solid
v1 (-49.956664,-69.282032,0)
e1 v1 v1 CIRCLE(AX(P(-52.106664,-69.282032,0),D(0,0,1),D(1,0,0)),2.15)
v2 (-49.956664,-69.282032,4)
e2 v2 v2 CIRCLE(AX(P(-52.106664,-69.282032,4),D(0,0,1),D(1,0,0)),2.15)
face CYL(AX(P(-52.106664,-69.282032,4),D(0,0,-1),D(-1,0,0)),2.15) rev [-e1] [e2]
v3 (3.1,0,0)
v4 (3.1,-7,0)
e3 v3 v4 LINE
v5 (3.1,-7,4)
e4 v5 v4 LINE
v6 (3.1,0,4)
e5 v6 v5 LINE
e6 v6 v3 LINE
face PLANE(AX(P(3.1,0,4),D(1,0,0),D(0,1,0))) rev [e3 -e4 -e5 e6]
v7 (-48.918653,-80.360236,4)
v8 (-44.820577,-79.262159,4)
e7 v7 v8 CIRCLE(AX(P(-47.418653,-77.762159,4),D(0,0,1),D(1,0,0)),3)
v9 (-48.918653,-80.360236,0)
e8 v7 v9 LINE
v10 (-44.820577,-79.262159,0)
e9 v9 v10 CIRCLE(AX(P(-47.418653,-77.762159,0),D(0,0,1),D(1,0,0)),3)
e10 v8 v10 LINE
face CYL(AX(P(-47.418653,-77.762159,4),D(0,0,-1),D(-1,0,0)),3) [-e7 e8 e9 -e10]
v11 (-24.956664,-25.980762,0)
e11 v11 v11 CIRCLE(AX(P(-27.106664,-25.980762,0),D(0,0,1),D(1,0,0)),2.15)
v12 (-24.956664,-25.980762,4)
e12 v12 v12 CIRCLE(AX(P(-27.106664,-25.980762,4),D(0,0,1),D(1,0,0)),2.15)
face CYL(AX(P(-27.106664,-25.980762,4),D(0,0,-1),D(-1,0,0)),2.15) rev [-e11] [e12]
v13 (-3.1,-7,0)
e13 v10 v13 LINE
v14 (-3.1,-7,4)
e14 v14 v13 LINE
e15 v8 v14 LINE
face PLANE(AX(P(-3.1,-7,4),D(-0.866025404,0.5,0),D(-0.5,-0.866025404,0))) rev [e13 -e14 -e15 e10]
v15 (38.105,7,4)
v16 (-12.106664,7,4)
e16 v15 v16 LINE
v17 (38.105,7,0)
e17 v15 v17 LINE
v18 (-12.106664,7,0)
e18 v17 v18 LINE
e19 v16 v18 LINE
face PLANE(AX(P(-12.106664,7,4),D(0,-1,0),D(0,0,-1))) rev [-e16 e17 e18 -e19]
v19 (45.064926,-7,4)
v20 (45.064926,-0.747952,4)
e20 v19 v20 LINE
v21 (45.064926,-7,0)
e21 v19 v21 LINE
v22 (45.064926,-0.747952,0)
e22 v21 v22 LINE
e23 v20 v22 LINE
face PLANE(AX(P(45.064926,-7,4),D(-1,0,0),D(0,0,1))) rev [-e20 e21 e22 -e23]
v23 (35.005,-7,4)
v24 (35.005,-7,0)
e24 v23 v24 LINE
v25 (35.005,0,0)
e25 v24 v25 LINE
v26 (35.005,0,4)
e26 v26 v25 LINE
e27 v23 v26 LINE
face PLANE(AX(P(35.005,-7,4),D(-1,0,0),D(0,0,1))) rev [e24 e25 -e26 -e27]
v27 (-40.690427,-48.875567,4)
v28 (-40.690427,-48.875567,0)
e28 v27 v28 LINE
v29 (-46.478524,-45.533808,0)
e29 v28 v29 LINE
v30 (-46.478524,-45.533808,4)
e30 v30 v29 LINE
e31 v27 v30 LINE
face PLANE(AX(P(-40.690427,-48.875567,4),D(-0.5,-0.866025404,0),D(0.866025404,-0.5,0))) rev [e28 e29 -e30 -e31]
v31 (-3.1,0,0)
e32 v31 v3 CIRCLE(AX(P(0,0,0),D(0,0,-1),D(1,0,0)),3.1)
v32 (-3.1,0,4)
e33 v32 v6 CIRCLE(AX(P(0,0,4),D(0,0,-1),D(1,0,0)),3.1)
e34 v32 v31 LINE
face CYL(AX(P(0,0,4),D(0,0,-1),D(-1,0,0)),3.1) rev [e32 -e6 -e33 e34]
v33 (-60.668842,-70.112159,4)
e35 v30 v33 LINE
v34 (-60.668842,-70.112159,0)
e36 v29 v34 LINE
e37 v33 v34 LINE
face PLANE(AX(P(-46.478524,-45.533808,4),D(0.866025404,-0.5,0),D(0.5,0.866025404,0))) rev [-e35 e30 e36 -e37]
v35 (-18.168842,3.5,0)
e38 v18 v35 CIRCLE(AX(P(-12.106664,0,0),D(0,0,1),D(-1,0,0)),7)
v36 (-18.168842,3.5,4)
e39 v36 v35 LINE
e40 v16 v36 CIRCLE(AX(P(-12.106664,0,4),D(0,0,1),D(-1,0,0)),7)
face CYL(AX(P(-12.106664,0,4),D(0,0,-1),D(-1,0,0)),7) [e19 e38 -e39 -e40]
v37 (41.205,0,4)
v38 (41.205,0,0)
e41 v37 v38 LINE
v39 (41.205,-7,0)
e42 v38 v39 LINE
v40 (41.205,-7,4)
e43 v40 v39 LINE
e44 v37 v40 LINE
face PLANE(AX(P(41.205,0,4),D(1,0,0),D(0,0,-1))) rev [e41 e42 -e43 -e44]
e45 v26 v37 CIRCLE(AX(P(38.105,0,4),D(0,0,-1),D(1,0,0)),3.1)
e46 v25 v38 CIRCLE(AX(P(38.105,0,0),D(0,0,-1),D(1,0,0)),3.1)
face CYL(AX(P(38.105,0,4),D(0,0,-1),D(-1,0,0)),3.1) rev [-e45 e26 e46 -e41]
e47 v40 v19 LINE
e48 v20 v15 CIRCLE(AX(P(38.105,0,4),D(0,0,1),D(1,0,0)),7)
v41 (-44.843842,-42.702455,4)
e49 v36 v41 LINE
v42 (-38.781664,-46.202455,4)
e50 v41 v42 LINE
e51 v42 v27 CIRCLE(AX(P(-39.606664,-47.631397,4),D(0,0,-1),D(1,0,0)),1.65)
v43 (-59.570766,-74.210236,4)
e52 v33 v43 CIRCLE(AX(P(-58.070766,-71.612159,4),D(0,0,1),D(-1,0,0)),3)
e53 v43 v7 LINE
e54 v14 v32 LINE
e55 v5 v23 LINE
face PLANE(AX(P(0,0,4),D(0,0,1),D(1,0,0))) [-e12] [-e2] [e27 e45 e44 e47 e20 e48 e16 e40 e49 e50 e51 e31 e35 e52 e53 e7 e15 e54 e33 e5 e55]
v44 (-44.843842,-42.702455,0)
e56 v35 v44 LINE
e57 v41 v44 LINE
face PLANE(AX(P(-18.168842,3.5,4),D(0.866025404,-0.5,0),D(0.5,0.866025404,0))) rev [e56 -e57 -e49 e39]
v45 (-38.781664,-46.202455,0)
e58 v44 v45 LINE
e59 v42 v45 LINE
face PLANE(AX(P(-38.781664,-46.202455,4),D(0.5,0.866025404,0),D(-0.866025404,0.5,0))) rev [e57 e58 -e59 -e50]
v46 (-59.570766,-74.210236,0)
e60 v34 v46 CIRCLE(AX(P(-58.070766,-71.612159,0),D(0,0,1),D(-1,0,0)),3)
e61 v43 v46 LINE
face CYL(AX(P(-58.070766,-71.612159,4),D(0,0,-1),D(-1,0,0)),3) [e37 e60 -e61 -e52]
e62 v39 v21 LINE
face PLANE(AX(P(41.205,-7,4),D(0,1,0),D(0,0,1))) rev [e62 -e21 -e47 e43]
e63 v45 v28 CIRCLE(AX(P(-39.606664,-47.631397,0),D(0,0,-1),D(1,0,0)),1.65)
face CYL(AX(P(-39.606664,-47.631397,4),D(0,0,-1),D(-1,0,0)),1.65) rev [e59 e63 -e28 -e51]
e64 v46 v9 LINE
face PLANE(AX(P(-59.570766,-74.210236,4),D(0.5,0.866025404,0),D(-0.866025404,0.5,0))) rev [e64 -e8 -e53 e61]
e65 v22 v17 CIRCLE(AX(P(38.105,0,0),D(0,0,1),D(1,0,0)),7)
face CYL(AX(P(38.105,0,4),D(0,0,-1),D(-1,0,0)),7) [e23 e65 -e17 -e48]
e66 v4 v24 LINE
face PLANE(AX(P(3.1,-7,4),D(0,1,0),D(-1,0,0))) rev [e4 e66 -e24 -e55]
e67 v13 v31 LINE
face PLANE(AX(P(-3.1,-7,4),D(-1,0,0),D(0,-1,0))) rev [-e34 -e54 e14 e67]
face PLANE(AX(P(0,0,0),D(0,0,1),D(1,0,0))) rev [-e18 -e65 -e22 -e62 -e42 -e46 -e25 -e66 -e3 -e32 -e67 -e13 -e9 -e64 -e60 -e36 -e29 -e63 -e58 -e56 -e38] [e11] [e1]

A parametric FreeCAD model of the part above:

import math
import FreeCAD as App
import Part
import Sketcher

V = App.Vector
Q = App.Units.Quantity

doc = App.newDocument("Part")
body = doc.addObject("PartDesign::Body", "Body")

sketch1 = body.newObject("Sketcher::SketchObject", "Sketch")
sketch1.AttachmentSupport = (doc.getObject("XY_Plane"), [""])
sketch1.MapMode = "FlatFace"
sketch1.addGeometry([
    Part.LineSegment(V(-3.1, -7, 0), V(-3.1, 0, 0)),
    Part.ArcOfCircle(Part.Circle(V(0, 0, 0), V(0, 0, 1), 3.1), math.radians(0), math.radians(180)),
    Part.LineSegment(V(3.1, 0, 0), V(3.1, -7, 0)),
    Part.LineSegment(V(3.1, -7, 0), V(35, -7, 0)),
    Part.LineSegment(V(35, -7, 0), V(35, 0, 0)),
    Part.ArcOfCircle(Part.Circle(V(38.1, 0, 0), V(0, 0, 1), 3.1), math.radians(0), math.radians(180)),
    Part.LineSegment(V(41.2, 0, 0), V(41.2, -7, 0)),
    Part.LineSegment(V(41.2, -7, 0), V(45.1, -7, 0)),
    Part.LineSegment(V(45.1, -7, 0), V(45.1, -0.7, 0)),
    Part.ArcOfCircle(Part.Circle(V(38.1, 0, 0), V(0, 0, 1), 7), math.radians(-6), math.radians(90)),
    Part.LineSegment(V(38.1, 7, 0), V(-12.1, 7, 0)),
    Part.ArcOfCircle(Part.Circle(V(-12.1, 0, 0), V(0, 0, 1), 7), math.radians(90), math.radians(150)),
    Part.LineSegment(V(-18.2, 3.5, 0), V(-44.8, -42.7, 0)),
    Part.LineSegment(V(-44.8, -42.7, 0), V(-38.8, -46.2, 0)),
    Part.ArcOfCircle(Part.Circle(V(-39.6, -47.6, 0), V(0, 0, 1), 1.6), math.radians(-131), math.radians(60)),
    Part.LineSegment(V(-40.7, -48.9, 0), V(-46.5, -45.5, 0)),
    Part.LineSegment(V(-46.5, -45.5, 0), V(-60.7, -70.1, 0)),
    Part.ArcOfCircle(Part.Circle(V(-58.1, -71.6, 0), V(0, 0, 1), 3), math.radians(150), math.radians(240)),
    Part.LineSegment(V(-59.6, -74.2, 0), V(-48.9, -80.4, 0)),
    Part.ArcOfCircle(Part.Circle(V(-47.4, -77.8, 0), V(0, 0, 1), 3), math.radians(-120), math.radians(-30)),
    Part.LineSegment(V(-44.8, -79.3, 0), V(-3.1, -7, 0)),
    Part.Circle(V(-52.1, -69.3, 0), V(0, 0, 1), 2.1),
    Part.Circle(V(-27.1, -26, 0), V(0, 0, 1), 2.1),
], False)
sketch1.addConstraint([
    Sketcher.Constraint("Tangent", 0, 2, 1, 2),
    Sketcher.Constraint("Tangent", 1, 1, 2, 1),
    Sketcher.Constraint("Coincident", 2, 2, 3, 1),
    Sketcher.Constraint("Coincident", 3, 2, 4, 1),
    Sketcher.Constraint("Tangent", 4, 2, 5, 2),
    Sketcher.Constraint("Tangent", 5, 1, 6, 1),
    Sketcher.Constraint("Coincident", 6, 2, 7, 1),
    Sketcher.Constraint("Coincident", 7, 2, 8, 1),
    Sketcher.Constraint("Coincident", 8, 2, 9, 1),
    Sketcher.Constraint("Tangent", 9, 2, 10, 1),
    Sketcher.Constraint("Tangent", 10, 2, 11, 1),
    Sketcher.Constraint("Tangent", 11, 2, 12, 1),
    Sketcher.Constraint("Coincident", 12, 2, 13, 1),
    Sketcher.Constraint("Tangent", 13, 2, 14, 2),
    Sketcher.Constraint("Coincident", 14, 1, 15, 1),
    Sketcher.Constraint("Coincident", 15, 2, 16, 1),
    Sketcher.Constraint("Tangent", 16, 2, 17, 1),
    Sketcher.Constraint("Tangent", 17, 2, 18, 1),
    Sketcher.Constraint("Tangent", 18, 2, 19, 1),
    Sketcher.Constraint("Tangent", 19, 2, 20, 1),
    Sketcher.Constraint("Coincident", 20, 2, 0, 1),
    Sketcher.Constraint("Vertical", 0),
    Sketcher.Constraint("Vertical", 2),
    Sketcher.Constraint("Horizontal", 3),
    Sketcher.Constraint("Vertical", 4),
    Sketcher.Constraint("Vertical", 6),
    Sketcher.Constraint("Horizontal", 7),
    Sketcher.Constraint("Vertical", 8),
    Sketcher.Constraint("Horizontal", 10),
    Sketcher.Constraint("Coincident", 1, 3, -1, 1),
    Sketcher.Constraint("Coincident", 9, 3, 5, 3),
    Sketcher.Constraint("Equal", 1, 5),
    Sketcher.Constraint("Equal", 9, 11),
    Sketcher.Constraint("Equal", 17, 19),
    Sketcher.Constraint("Equal", 21, 22),
    Sketcher.Constraint("PointOnObject", 5, 3, -1),
    Sketcher.Constraint("Perpendicular", 12, 13),
    Sketcher.Constraint("Parallel", 13, 15),
    Sketcher.Constraint("Perpendicular", 15, 16),
    Sketcher.Constraint("Perpendicular", 16, 18),
    Sketcher.Constraint("Perpendicular", 18, 20),
    Sketcher.Constraint("Horizontal", 3, 2, 6, 2),
    Sketcher.Constraint("Horizontal", 7, 2, 20, 2),
    Sketcher.Constraint("Radius", 9, 7.0),
    Sketcher.Constraint("Radius", 17, 3.0),
    Sketcher.Constraint("Diameter", 21, 4.3),
    Sketcher.Constraint("Radius", 1, 3.1),
    Sketcher.Constraint("DistanceY", 0, 1, 0, 2, 7.0),
    Sketcher.Constraint("Angle", 12, Q("-120 deg")),
    Sketcher.Constraint("Radius", 14, 1.65),
    Sketcher.Constraint("Distance", 13, 7.0),
    Sketcher.Constraint("DistanceX", 21, 3, 11, 3, 40.0),
    Sketcher.Constraint("DistanceX", 22, 3, 11, 3, 15.0),
    Sketcher.Constraint("Distance", 18, 12.3),
    Sketcher.Constraint("DistanceX", 14, 3, 11, 3, 27.5),
    Sketcher.Constraint("DistanceX", 3, 1, 3, 2, 31.905),
    Sketcher.Constraint("DistanceX", 17, 3, 14, 3, 18.464102),
    Sketcher.Constraint("Distance", 15, 6.683519),
    Sketcher.Constraint("DistanceX", 7, 1, 7, 2, 3.859926),
    Sketcher.Constraint("DistanceX", 10, 2, 10, 1, 50.211664),
    Sketcher.Constraint("DistanceY", 21, 3, 22, 3, 43.30127),
    Sketcher.Constraint("DistanceY", 21, 3, -1, 1, 69.282032),
])
pad1 = body.newObject("PartDesign::Pad", "Pad")
pad1.Profile = sketch1
pad1.Length = 4

doc.recompute()
